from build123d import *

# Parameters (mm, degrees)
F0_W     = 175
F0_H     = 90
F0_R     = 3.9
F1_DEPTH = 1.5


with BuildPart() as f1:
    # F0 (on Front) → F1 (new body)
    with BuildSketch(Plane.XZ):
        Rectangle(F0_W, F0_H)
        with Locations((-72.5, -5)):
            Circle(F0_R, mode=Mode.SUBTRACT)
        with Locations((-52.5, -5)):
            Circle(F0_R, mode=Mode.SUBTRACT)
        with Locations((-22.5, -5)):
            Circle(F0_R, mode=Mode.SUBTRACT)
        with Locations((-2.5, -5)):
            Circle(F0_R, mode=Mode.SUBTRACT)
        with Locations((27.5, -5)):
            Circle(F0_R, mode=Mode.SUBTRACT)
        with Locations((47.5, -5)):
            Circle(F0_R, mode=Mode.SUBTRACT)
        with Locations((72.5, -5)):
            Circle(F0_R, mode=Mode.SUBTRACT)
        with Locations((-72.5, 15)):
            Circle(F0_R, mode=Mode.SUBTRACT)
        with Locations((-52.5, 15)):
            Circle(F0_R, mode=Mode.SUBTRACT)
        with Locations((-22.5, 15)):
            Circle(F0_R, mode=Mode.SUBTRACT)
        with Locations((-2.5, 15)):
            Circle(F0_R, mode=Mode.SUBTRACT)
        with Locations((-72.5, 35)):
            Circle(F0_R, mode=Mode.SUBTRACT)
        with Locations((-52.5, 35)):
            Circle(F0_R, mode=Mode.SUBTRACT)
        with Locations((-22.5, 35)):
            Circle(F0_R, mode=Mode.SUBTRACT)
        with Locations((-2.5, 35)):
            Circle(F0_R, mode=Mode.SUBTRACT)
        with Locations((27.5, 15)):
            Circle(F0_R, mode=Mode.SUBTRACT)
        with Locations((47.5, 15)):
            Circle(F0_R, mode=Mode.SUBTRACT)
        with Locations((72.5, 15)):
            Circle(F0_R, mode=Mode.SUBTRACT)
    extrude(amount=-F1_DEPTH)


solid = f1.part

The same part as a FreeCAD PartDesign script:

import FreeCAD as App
import Part
import Sketcher
Q = App.Units.Quantity


def add_polygon(sketch, points):
    """Adds a closed chain of lines whose ends are joined by coincident constraints."""
    first, n = sketch.GeometryCount, len(points)
    for a, b in zip(points, points[1:] + points[:1]):
        sketch.addGeometry(Part.LineSegment(App.Vector(*a, 0), App.Vector(*b, 0)), False)
    for i in range(n):
        sketch.addConstraint(Sketcher.Constraint("Coincident", first + i, 2, first + (i + 1) % n, 1))

doc = App.newDocument("Part")
body = doc.addObject("PartDesign::Body", "Body")

# Sketch on XZ plane
sketch1 = body.newObject("Sketcher::SketchObject", "Sketch")
sketch1.AttachmentSupport = (doc.getObject("XZ_Plane"), [""])
sketch1.MapMode = "FlatFace"
add_polygon(sketch1, [(-87.5, 45), (-87.5, -45), (87.5, -45), (87.5, 45)])  # lines 0-3
sketch1.addGeometry(Part.Circle(App.Vector(-72.5, -5, 0), App.Vector(0, 0, 1), 3.9), False)  # 4
sketch1.addGeometry(Part.Circle(App.Vector(-52.5, -5, 0), App.Vector(0, 0, 1), 3.9), False)  # 5
sketch1.addGeometry(Part.Circle(App.Vector(-22.5, -5, 0), App.Vector(0, 0, 1), 3.9), False)  # 6
sketch1.addGeometry(Part.Circle(App.Vector(-2.5, -5, 0), App.Vector(0, 0, 1), 3.9), False)  # 7
sketch1.addGeometry(Part.Circle(App.Vector(27.5, -5, 0), App.Vector(0, 0, 1), 3.9), False)  # 8
sketch1.addGeometry(Part.Circle(App.Vector(47.5, -5, 0), App.Vector(0, 0, 1), 3.9), False)  # 9
sketch1.addGeometry(Part.Circle(App.Vector(72.5, -5, 0), App.Vector(0, 0, 1), 3.9), False)  # 10
sketch1.addGeometry(Part.Circle(App.Vector(-72.5, 15, 0), App.Vector(0, 0, 1), 3.9), False)  # 11
sketch1.addGeometry(Part.Circle(App.Vector(-52.5, 15, 0), App.Vector(0, 0, 1), 3.9), False)  # 12
sketch1.addGeometry(Part.Circle(App.Vector(-22.5, 15, 0), App.Vector(0, 0, 1), 3.9), False)  # 13
sketch1.addGeometry(Part.Circle(App.Vector(-2.5, 15, 0), App.Vector(0, 0, 1), 3.9), False)  # 14
sketch1.addGeometry(Part.Circle(App.Vector(-72.5, 35, 0), App.Vector(0, 0, 1), 3.9), False)  # 15
sketch1.addGeometry(Part.Circle(App.Vector(-52.5, 35, 0), App.Vector(0, 0, 1), 3.9), False)  # 16
sketch1.addGeometry(Part.Circle(App.Vector(-22.5, 35, 0), App.Vector(0, 0, 1), 3.9), False)  # 17
sketch1.addGeometry(Part.Circle(App.Vector(-2.5, 35, 0), App.Vector(0, 0, 1), 3.9), False)  # 18
sketch1.addGeometry(Part.Circle(App.Vector(27.5, 15, 0), App.Vector(0, 0, 1), 3.9), False)  # 19
sketch1.addGeometry(Part.Circle(App.Vector(47.5, 15, 0), App.Vector(0, 0, 1), 3.9), False)  # 20
sketch1.addGeometry(Part.Circle(App.Vector(72.5, 15, 0), App.Vector(0, 0, 1), 3.9), False)  # 21
sketch1.addConstraint(Sketcher.Constraint("Vertical", 0))
sketch1.addConstraint(Sketcher.Constraint("Horizontal", 1))
sketch1.addConstraint(Sketcher.Constraint("Vertical", 2))
sketch1.addConstraint(Sketcher.Constraint("Horizontal", 3))
sketch1.addConstraint(Sketcher.Constraint("Equal", 4, 5))
sketch1.addConstraint(Sketcher.Constraint("Equal", 5, 6))
sketch1.addConstraint(Sketcher.Constraint("Equal", 6, 7))
sketch1.addConstraint(Sketcher.Constraint("Equal", 7, 8))
sketch1.addConstraint(Sketcher.Constraint("Equal", 8, 9))
sketch1.addConstraint(Sketcher.Constraint("Equal", 9, 10))
sketch1.addConstraint(Sketcher.Constraint("Equal", 10, 11))
sketch1.addConstraint(Sketcher.Constraint("Equal", 11, 12))
sketch1.addConstraint(Sketcher.Constraint("Equal", 12, 13))
sketch1.addConstraint(Sketcher.Constraint("Equal", 13, 14))
sketch1.addConstraint(Sketcher.Constraint("Equal", 14, 15))
sketch1.addConstraint(Sketcher.Constraint("Equal", 15, 16))
sketch1.addConstraint(Sketcher.Constraint("Equal", 16, 17))
sketch1.addConstraint(Sketcher.Constraint("Equal", 17, 18))
sketch1.addConstraint(Sketcher.Constraint("Equal", 18, 19))
sketch1.addConstraint(Sketcher.Constraint("Equal", 19, 20))
sketch1.addConstraint(Sketcher.Constraint("Equal", 20, 21))
sketch1.addConstraint(Sketcher.Constraint("Symmetric", 0, 2, 2, 2, -1, 1))
sketch1.addConstraint(Sketcher.Constraint("Symmetric", 4, 3, 10, 3, -2))
sketch1.addConstraint(Sketcher.Constraint("Symmetric", 11, 3, 21, 3, -2))
sketch1.addConstraint(Sketcher.Constraint("Horizontal", 4, 3, 5, 3))
sketch1.addConstraint(Sketcher.Constraint("Horizontal", 5, 3, 6, 3))
sketch1.addConstraint(Sketcher.Constraint("Horizontal", 6, 3, 7, 3))
sketch1.addConstraint(Sketcher.Constraint("Horizontal", 7, 3, 8, 3))
sketch1.addConstraint(Sketcher.Constraint("Horizontal", 8, 3, 9, 3))
sketch1.addConstraint(Sketcher.Constraint("Horizontal", 11, 3, 12, 3))
sketch1.addConstraint(Sketcher.Constraint("Horizontal", 12, 3, 13, 3))
sketch1.addConstraint(Sketcher.Constraint("Horizontal", 13, 3, 14, 3))
sketch1.addConstraint(Sketcher.Constraint("Horizontal", 15, 3, 16, 3))
sketch1.addConstraint(Sketcher.Constraint("Horizontal", 16, 3, 17, 3))
sketch1.addConstraint(Sketcher.Constraint("Horizontal", 17, 3, 18, 3))
sketch1.addConstraint(Sketcher.Constraint("Horizontal", 14, 3, 19, 3))
sketch1.addConstraint(Sketcher.Constraint("Horizontal", 19, 3, 20, 3))
sketch1.addConstraint(Sketcher.Constraint("Vertical", 4, 3, 11, 3))
sketch1.addConstraint(Sketcher.Constraint("Vertical", 5, 3, 12, 3))
sketch1.addConstraint(Sketcher.Constraint("Vertical", 6, 3, 13, 3))
sketch1.addConstraint(Sketcher.Constraint("Vertical", 7, 3, 14, 3))
sketch1.addConstraint(Sketcher.Constraint("Vertical", 11, 3, 15, 3))
sketch1.addConstraint(Sketcher.Constraint("Vertical", 12, 3, 16, 3))
sketch1.addConstraint(Sketcher.Constraint("Vertical", 13, 3, 17, 3))
sketch1.addConstraint(Sketcher.Constraint("Vertical", 14, 3, 18, 3))
sketch1.addConstraint(Sketcher.Constraint("Vertical", 8, 3, 19, 3))
sketch1.addConstraint(Sketcher.Constraint("Vertical", 9, 3, 20, 3))
sketch1.addConstraint(Sketcher.Constraint("Diameter", 4, Q("7.8 mm")))
sketch1.addConstraint(Sketcher.Constraint("DistanceX", 1, 1, 1, 2, Q("175 mm")))
sketch1.addConstraint(Sketcher.Constraint("DistanceY", 0, 2, 0, 1, Q("90 mm")))
sketch1.addConstraint(Sketcher.Constraint("DistanceY", 4, 3, -1, 1, Q("5 mm")))
sketch1.addConstraint(Sketcher.Constraint("DistanceY", -1, 1, 11, 3, Q("15 mm")))
sketch1.addConstraint(Sketcher.Constraint("DistanceY", -1, 1, 15, 3, Q("35 mm")))
sketch1.addConstraint(Sketcher.Constraint("DistanceX", 4, 3, 5, 3, Q("20 mm")))
sketch1.addConstraint(Sketcher.Constraint("DistanceX", 5, 3, 6, 3, Q("30 mm")))
sketch1.addConstraint(Sketcher.Constraint("DistanceX", 6, 3, 7, 3, Q("20 mm")))
sketch1.addConstraint(Sketcher.Constraint("DistanceX", 7, 3, 8, 3, Q("30 mm")))
sketch1.addConstraint(Sketcher.Constraint("DistanceX", 8, 3, 9, 3, Q("20 mm")))
sketch1.addConstraint(Sketcher.Constraint("DistanceX", 9, 3, 10, 3, Q("25 mm")))
pad1 = body.newObject("PartDesign::Pad", "Pad")
pad1.Profile = sketch1
pad1.Length = 1.5
pad1.Reversed = True

doc.recompute()
